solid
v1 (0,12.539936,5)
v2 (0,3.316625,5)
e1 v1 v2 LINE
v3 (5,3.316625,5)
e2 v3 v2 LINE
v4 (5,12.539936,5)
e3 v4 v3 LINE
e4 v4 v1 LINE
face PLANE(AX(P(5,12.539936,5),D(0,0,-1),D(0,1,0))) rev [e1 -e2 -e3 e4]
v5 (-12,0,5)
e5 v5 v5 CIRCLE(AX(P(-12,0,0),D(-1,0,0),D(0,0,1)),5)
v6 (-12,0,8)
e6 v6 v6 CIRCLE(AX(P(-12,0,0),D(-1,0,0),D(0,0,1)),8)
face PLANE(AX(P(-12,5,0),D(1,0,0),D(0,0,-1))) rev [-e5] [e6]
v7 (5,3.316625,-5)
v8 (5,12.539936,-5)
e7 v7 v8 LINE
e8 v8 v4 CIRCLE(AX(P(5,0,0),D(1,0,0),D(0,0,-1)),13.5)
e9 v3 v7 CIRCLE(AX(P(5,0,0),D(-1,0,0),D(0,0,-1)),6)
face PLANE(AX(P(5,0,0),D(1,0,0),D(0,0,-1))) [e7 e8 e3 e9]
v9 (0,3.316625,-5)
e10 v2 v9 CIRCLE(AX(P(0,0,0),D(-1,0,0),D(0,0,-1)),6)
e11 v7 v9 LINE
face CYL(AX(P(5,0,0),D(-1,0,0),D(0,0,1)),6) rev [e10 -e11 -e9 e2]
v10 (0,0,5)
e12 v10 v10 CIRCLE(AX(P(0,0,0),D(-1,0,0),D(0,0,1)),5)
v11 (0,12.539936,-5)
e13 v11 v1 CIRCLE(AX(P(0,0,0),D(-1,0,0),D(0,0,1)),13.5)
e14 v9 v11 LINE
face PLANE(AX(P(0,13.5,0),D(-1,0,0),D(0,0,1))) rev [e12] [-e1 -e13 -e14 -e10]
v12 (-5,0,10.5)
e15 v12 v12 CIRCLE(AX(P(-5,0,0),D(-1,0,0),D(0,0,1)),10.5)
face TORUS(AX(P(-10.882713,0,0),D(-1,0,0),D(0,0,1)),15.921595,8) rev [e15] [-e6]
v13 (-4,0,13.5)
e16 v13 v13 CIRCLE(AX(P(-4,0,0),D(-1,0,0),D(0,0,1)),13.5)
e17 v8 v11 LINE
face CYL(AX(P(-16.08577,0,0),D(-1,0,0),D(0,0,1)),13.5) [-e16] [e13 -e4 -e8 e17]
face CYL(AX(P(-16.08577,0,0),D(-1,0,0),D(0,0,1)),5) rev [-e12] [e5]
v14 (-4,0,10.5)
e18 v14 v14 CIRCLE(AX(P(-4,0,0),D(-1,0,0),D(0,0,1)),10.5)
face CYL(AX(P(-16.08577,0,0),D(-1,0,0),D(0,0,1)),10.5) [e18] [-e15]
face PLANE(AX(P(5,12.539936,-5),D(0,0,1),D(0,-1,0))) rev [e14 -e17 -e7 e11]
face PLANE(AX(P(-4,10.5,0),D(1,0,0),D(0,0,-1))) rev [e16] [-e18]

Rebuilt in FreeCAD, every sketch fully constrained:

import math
import FreeCAD as App
import Part
import Sketcher

V = App.Vector
Q = App.Units.Quantity

doc = App.newDocument("Part")
params = doc.addObject("Spreadsheet::Sheet", "Params")
for row, (alias, value) in enumerate([
    ("sketch1_radius", "8 mm"),
    ("sketch1_width", "12 mm"),
    ("sketch1_width2", "4 mm"),
    ("sketch1_width3", "1 mm"),
    ("sketch1_height", "3 mm"),
    ("revolution_angle", "360 deg"),
    ("sketch2_radius", "6 mm"),
    ("sketch2_radius2", "13.5 mm"),
    ("pad1_length", "5 mm"),
], start=1):
    params.set(f"A{row}", alias)
    params.set(f"B{row}", "=" + value)
    params.setAlias(f"B{row}", alias)

body = doc.addObject("PartDesign::Body", "Body")

# Sketch on XY plane
sketch1 = doc.addObject("Sketcher::SketchObject", "Sketch")
body.addObject(sketch1)
sketch1.AttachmentSupport = (doc.XY_Plane, [""])
sketch1.MapMode = "FlatFace"
sketch1.addGeometry([
    Part.LineSegment(V(-12, 8, 0), V(-12, 5, 0)),  # 0
    Part.LineSegment(V(-12, 5, 0), V(0, 5, 0)),  # 1
    Part.LineSegment(V(0, 5, 0), V(0, 13.5, 0)),  # 2
    Part.LineSegment(V(0, 13.5, 0), V(-4, 13.5, 0)),  # 3
    Part.LineSegment(V(-4, 13.5, 0), V(-4, 10.5, 0)),  # 4
    Part.LineSegment(V(-4, 10.5, 0), V(-5, 10.5, 0)),  # 5
    Part.ArcOfCircle(Part.Circle(V(-10.9, 15.9, 0), V(0, 0, 1), 8), math.radians(-98), math.radians(-43)),  # 6
], False)
sketch1.addConstraint([
    Sketcher.Constraint("Coincident", 0, 2, 1, 1),
    Sketcher.Constraint("Coincident", 1, 2, 2, 1),
    Sketcher.Constraint("Coincident", 2, 2, 3, 1),
    Sketcher.Constraint("Coincident", 3, 2, 4, 1),
    Sketcher.Constraint("Coincident", 4, 2, 5, 1),
    Sketcher.Constraint("Coincident", 5, 2, 6, 2),
    Sketcher.Constraint("Coincident", 6, 1, 0, 1),
    Sketcher.Constraint("Vertical", 0),
    Sketcher.Constraint("Horizontal", 1),
    Sketcher.Constraint("Vertical", 2),
    Sketcher.Constraint("Horizontal", 3),
    Sketcher.Constraint("Vertical", 4),
    Sketcher.Constraint("Horizontal", 5),
    Sketcher.Constraint("PointOnObject", 1, 2, -2),
    Sketcher.Constraint("Equal", 0, 4),
    Sketcher.Constraint("Radius", 6, Q("8 mm")),
    Sketcher.Constraint("DistanceX", 1, 1, 1, 2, Q("12 mm")),
    Sketcher.Constraint("DistanceX", 3, 2, 3, 1, Q("4 mm")),
    Sketcher.Constraint("DistanceX", 5, 2, 5, 1, Q("1 mm")),
    Sketcher.Constraint("DistanceY", 0, 2, 0, 1, Q("3 mm")),
    Sketcher.Constraint("DistanceY", 2, 1, 2, 2, Q("8.5 mm")),
    Sketcher.Constraint("DistanceY", -1, 1, 0, 2, Q("5 mm")),
])
sketch1.setExpression("Constraints[15]", "Params.sketch1_radius")
sketch1.setExpression("Constraints[16]", "Params.sketch1_width")
sketch1.setExpression("Constraints[17]", "Params.sketch1_width2")
sketch1.setExpression("Constraints[18]", "Params.sketch1_width3")
sketch1.setExpression("Constraints[19]", "Params.sketch1_height")
revolution = doc.addObject("PartDesign::Revolution", "Revolution")
body.addObject(revolution)
revolution.Profile = sketch1
revolution.ReferenceAxis = (sketch1, ["H_Axis"])
revolution.setExpression("Angle", "Params.revolution_angle")

# Sketch on YZ plane
sketch2 = doc.addObject("Sketcher::SketchObject", "Sketch001")
body.addObject(sketch2)
sketch2.AttachmentSupport = (doc.YZ_Plane, [""])
sketch2.MapMode = "FlatFace"
sketch2.addGeometry([
    Part.LineSegment(V(13, 5, 0), V(3, 5, 0)),
    Part.ArcOfCircle(Part.Circle(V(0, 0, 0), V(0, 0, 1), 6), math.radians(-56), math.radians(56)),
    Part.LineSegment(V(3, -5, 0), V(13, -5, 0)),
    Part.ArcOfCircle(Part.Circle(V(0, 0, 0), V(0, 0, 1), 14), math.radians(-22), math.radians(22)),
], False)
sketch2.addConstraint([
    Sketcher.Constraint("Coincident", 0, 2, 1, 2),
    Sketcher.Constraint("Coincident", 1, 1, 2, 1),
    Sketcher.Constraint("Coincident", 2, 2, 3, 1),
    Sketcher.Constraint("Coincident", 3, 2, 0, 1),
    Sketcher.Constraint("Horizontal", 0),
    Sketcher.Constraint("Horizontal", 2),
    Sketcher.Constraint("Coincident", 1, 3, -1, 1),
    Sketcher.Constraint("Coincident", 3, 3, -1, 1),
    Sketcher.Constraint("Vertical", 0, 2, 1, 1),
    Sketcher.Constraint("Radius", 1, Q("6 mm")),
    Sketcher.Constraint("Radius", 3, Q("13.5 mm")),
    Sketcher.Constraint("DistanceY", -1, 1, 0, 2, Q("5 mm")),
])
sketch2.setExpression("Constraints[9]", "Params.sketch2_radius")
sketch2.setExpression("Constraints[10]", "Params.sketch2_radius2")
pad1 = doc.addObject("PartDesign::Pad", "Pad")
body.addObject(pad1)
pad1.Profile = sketch2
pad1.setExpression("Length", "Params.pad1_length")

doc.recompute()
